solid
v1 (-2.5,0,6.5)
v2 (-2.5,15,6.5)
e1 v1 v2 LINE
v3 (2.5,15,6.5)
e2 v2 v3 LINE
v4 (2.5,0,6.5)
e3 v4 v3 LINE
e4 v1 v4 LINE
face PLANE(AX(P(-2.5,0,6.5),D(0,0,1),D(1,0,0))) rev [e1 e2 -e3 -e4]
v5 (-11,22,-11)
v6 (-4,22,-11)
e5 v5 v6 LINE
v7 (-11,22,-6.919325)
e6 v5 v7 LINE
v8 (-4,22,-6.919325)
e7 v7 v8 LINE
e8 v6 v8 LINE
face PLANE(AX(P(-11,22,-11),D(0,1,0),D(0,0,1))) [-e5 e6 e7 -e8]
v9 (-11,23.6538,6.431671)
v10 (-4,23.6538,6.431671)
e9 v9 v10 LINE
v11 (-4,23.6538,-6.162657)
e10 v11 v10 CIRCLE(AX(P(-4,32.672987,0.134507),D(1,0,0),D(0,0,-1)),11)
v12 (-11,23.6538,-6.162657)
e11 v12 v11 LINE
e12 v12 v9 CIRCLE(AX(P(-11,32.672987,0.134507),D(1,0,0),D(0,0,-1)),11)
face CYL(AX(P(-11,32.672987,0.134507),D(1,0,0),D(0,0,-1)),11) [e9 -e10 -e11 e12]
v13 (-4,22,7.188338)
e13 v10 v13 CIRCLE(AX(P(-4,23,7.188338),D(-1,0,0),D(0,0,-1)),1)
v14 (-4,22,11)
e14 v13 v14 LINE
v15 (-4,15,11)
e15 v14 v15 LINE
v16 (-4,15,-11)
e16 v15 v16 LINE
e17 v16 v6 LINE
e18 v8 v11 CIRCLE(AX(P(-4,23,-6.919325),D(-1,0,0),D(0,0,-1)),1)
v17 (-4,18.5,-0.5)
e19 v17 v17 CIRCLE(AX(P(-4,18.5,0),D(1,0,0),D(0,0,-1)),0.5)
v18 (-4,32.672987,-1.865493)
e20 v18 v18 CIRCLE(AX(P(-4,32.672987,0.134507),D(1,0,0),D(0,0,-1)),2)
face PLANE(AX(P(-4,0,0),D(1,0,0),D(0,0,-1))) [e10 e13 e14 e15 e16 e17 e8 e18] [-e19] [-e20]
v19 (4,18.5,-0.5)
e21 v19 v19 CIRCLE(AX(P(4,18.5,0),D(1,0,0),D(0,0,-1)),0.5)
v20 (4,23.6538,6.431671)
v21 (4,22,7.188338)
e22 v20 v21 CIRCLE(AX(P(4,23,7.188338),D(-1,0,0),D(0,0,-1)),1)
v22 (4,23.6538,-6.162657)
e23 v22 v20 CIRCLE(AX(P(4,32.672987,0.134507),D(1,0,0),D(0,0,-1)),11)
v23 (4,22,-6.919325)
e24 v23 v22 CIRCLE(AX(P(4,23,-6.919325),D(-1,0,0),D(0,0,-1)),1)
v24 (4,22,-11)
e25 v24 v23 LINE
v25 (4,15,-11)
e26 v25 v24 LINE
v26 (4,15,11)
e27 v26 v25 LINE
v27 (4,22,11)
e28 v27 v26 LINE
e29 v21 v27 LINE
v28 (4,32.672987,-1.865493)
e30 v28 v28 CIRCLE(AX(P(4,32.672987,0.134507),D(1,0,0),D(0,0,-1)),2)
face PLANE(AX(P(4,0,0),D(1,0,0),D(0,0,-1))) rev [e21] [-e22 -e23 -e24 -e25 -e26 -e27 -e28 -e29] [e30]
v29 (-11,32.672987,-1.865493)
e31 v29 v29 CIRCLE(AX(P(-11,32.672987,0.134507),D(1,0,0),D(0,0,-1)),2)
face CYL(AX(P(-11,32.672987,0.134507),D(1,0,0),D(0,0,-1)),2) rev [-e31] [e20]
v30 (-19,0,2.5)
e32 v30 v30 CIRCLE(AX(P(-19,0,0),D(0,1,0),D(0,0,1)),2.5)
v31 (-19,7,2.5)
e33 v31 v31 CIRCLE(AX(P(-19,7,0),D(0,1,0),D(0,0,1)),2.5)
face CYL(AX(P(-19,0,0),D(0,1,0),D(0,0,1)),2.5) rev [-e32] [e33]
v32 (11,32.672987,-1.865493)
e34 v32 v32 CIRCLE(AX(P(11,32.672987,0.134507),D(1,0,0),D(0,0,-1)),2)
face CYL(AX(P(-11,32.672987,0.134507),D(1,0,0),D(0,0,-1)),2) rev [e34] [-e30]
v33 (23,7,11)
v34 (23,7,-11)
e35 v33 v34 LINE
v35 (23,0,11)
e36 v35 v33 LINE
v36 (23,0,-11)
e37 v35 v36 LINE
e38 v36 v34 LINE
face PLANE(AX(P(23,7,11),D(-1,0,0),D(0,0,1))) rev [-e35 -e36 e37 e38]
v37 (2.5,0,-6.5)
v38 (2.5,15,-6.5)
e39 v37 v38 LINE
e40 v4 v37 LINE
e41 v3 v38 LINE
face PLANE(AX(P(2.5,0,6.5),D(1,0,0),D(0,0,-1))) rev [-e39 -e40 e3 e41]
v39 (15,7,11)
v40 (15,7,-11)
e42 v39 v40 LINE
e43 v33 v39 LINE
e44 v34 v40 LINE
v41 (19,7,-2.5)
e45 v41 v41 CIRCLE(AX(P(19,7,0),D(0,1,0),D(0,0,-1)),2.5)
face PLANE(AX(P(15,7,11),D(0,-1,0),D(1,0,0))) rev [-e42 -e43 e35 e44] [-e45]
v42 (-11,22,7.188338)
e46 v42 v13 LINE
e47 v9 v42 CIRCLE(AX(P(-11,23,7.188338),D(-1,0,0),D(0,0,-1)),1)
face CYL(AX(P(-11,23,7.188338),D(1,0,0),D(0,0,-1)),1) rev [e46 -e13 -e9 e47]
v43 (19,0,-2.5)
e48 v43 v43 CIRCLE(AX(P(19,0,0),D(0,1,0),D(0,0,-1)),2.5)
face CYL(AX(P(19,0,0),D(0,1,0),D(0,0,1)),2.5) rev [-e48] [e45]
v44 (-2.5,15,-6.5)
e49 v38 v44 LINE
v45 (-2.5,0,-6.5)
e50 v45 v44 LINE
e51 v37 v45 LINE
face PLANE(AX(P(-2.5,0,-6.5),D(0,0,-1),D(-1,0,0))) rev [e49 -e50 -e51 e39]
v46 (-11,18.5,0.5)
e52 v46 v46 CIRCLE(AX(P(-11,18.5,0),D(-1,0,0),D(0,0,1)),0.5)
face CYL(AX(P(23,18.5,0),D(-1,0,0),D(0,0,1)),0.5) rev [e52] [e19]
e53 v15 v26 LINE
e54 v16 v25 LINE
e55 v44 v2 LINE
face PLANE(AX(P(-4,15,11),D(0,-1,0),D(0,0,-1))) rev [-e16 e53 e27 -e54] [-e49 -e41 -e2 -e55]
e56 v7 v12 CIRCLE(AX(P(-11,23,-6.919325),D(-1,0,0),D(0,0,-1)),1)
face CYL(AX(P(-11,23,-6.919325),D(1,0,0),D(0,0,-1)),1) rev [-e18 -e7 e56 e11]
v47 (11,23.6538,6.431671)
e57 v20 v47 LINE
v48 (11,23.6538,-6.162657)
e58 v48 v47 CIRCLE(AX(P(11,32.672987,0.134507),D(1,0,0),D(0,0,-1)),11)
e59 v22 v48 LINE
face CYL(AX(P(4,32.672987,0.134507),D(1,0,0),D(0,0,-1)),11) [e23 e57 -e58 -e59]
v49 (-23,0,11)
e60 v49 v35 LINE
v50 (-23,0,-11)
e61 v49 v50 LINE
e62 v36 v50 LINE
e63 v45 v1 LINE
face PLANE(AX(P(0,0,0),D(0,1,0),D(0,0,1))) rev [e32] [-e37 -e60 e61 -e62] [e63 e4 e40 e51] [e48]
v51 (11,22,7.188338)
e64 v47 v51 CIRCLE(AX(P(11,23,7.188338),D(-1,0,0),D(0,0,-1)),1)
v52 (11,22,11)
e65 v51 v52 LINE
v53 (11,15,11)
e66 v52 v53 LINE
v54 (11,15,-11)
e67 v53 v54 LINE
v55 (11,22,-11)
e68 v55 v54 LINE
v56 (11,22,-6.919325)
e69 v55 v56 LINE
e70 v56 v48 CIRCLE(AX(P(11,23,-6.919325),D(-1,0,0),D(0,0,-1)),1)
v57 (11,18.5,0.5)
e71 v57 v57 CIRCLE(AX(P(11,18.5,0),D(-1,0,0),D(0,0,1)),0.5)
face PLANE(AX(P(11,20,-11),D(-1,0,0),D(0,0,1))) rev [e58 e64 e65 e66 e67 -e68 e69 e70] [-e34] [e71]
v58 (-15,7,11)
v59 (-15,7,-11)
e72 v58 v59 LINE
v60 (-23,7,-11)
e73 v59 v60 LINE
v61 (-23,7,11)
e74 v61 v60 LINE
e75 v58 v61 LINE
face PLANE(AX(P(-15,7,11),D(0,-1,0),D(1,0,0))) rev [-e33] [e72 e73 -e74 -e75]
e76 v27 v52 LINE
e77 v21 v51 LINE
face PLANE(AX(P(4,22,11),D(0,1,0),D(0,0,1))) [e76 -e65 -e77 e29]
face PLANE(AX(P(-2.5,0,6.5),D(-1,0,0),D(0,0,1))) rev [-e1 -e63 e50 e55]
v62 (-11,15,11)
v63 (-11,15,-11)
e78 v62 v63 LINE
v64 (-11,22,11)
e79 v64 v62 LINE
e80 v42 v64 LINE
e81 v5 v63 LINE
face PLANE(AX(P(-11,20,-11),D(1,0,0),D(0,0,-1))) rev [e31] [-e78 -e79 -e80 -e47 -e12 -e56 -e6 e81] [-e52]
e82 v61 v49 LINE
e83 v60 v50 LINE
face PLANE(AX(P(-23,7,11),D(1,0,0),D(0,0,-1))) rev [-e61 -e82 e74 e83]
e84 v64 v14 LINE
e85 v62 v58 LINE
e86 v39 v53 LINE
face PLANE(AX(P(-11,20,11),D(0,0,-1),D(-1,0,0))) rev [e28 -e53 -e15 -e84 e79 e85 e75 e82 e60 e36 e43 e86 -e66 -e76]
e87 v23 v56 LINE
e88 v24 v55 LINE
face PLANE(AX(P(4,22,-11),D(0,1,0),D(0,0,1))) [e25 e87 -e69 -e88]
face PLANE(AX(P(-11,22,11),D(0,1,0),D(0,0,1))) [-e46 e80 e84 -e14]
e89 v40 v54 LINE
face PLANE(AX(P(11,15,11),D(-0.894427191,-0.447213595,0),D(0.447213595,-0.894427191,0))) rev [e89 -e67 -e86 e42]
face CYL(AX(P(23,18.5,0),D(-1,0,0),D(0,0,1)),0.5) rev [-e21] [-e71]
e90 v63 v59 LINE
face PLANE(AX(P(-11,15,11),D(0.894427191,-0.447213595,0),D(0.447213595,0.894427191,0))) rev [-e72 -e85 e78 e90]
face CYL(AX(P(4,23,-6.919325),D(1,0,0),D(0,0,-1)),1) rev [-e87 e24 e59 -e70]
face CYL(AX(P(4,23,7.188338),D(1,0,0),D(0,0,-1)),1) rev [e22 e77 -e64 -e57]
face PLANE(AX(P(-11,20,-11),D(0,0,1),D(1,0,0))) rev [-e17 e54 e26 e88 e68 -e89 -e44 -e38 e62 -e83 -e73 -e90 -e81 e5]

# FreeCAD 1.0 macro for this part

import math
import FreeCAD as App
import Part
import Sketcher

doc = App.newDocument("Part")
body = doc.addObject("PartDesign::Body", "Body")

sketch1 = doc.addObject("Sketcher::SketchObject", "Sketch")
body.addObject(sketch1)
sketch1.AttachmentSupport = (doc.XZ_Plane, [""])
sketch1.MapMode = "FlatFace"
sketch1.addGeometry([
    Part.LineSegment(App.Vector(-11, -11, 0), App.Vector(-11, 11, 0)),
    Part.LineSegment(App.Vector(-11, 11, 0), App.Vector(11, 11, 0)),
    Part.LineSegment(App.Vector(11, 11, 0), App.Vector(11, -11, 0)),
    Part.LineSegment(App.Vector(11, -11, 0), App.Vector(-11, -11, 0)),
], False)
sketch1.addConstraint([
    Sketcher.Constraint("Coincident", 0, 2, 1, 1),
    Sketcher.Constraint("Coincident", 1, 2, 2, 1),
    Sketcher.Constraint("Coincident", 2, 2, 3, 1),
    Sketcher.Constraint("Coincident", 3, 2, 0, 1),
    Sketcher.Constraint("Vertical", 0),
    Sketcher.Constraint("Horizontal", 1),
    Sketcher.Constraint("Vertical", 2),
    Sketcher.Constraint("Horizontal", 3),
    Sketcher.Constraint("Symmetric", 0, 2, 2, 2, -1, 1),
    Sketcher.Constraint("Equal", 3, 0),
    Sketcher.Constraint("DistanceX", 1, 1, 1, 2, 22.0),
])
pad1 = doc.addObject("PartDesign::Pad", "Pad")
body.addObject(pad1)
pad1.Profile = sketch1
pad1.Length = 20
pad1.Reversed = True

sketch2 = doc.addObject("Sketcher::SketchObject", "Sketch001")
body.addObject(sketch2)
sketch2.AttachmentSupport = (doc.YZ_Plane, [""])
sketch2.MapMode = "FlatFace"
sketch2.addGeometry([
    Part.LineSegment(App.Vector(20, 11, 0), App.Vector(15, 11, 0)),
    Part.LineSegment(App.Vector(15, 11, 0), App.Vector(15, -11, 0)),
    Part.LineSegment(App.Vector(15, -11, 0), App.Vector(20, -11, 0)),
    Part.LineSegment(App.Vector(20, -11, 0), App.Vector(20, 11, 0)),
], False)
sketch2.addConstraint([
    Sketcher.Constraint("Coincident", 0, 2, 1, 1),
    Sketcher.Constraint("Coincident", 1, 2, 2, 1),
    Sketcher.Constraint("Coincident", 2, 2, 3, 1),
    Sketcher.Constraint("Coincident", 3, 2, 0, 1),
    Sketcher.Constraint("Horizontal", 0),
    Sketcher.Constraint("Vertical", 1),
    Sketcher.Constraint("Horizontal", 2),
    Sketcher.Constraint("Vertical", 3),
    Sketcher.Constraint("DistanceX", 0, 2, 0, 1, 5.0),
    Sketcher.Constraint("DistanceY", 1, 2, 1, 1, 22.0),
    Sketcher.Constraint("DistanceX", -1, 1, 0, 2, 15.0),
    Sketcher.Constraint("DistanceY", -1, 1, 0, 2, 11.0),
])
pocket1 = doc.addObject("PartDesign::Pocket", "Pocket")
body.addObject(pocket1)
pocket1.Profile = sketch2
pocket1.Length = 8
pocket1.Midplane = True

sketch3 = doc.addObject("Sketcher::SketchObject", "Sketch002")
body.addObject(sketch3)
sketch3.AttachmentSupport = (doc.YZ_Plane, [""])
sketch3.MapMode = "FlatFace"
sketch3.AttachmentOffset = App.Placement(App.Vector(0, 0, 11), App.Rotation())
sketch3.addGeometry([
    Part.LineSegment(App.Vector(22, 11, 0), App.Vector(20, 11, 0)),
    Part.LineSegment(App.Vector(20, 11, 0), App.Vector(20, -11, 0)),
    Part.LineSegment(App.Vector(20, -11, 0), App.Vector(22, -11, 0)),
    Part.LineSegment(App.Vector(22, -11, 0), App.Vector(22, -6.919325, 0)),
    Part.ArcOfCircle(Part.Circle(App.Vector(23, -6.919325, 0), App.Vector(0, 0, 1), 1), math.radians(49.171258), math.radians(180)),
    Part.ArcOfCircle(Part.Circle(App.Vector(32.672987, 0.134507, 0), App.Vector(0, 0, 1), 11), math.radians(-145.07739), math.radians(145.07739)),
    Part.ArcOfCircle(Part.Circle(App.Vector(23, 7.188338, 0), App.Vector(0, 0, 1), 1), math.radians(180), math.radians(310.828742)),
    Part.LineSegment(App.Vector(22, 7.188338, 0), App.Vector(22, 11, 0)),
], False)
sketch3.addConstraint([
    Sketcher.Constraint("Coincident", 0, 2, 1, 1),
    Sketcher.Constraint("Coincident", 1, 2, 2, 1),
    Sketcher.Constraint("Coincident", 2, 2, 3, 1),
    Sketcher.Constraint("Tangent", 3, 2, 4, 2),
    Sketcher.Constraint("Coincident", 4, 1, 5, 1),
    Sketcher.Constraint("Coincident", 5, 2, 6, 2),
    Sketcher.Constraint("Tangent", 6, 1, 7, 1),
    Sketcher.Constraint("Coincident", 7, 2, 0, 1),
    Sketcher.Constraint("Horizontal", 0),
    Sketcher.Constraint("Vertical", 1),
    Sketcher.Constraint("Horizontal", 2),
    Sketcher.Constraint("Vertical", 3),
    Sketcher.Constraint("Vertical", 7),
    Sketcher.Constraint("Equal", 4, 6),
    Sketcher.Constraint("Symmetric", 2, 2, 7, 2, -1),
    Sketcher.Constraint("Vertical", 4, 1, 5, 2),
    Sketcher.Constraint("Radius", 4, 1.0),
    Sketcher.Constraint("Radius", 5, 11.0),
    Sketcher.Constraint("DistanceX", 0, 2, 0, 1, 2.0),
    Sketcher.Constraint("DistanceY", 1, 2, 1, 1, 22.0),
    Sketcher.Constraint("DistanceX", -1, 1, 4, 3, 23.0),
    Sketcher.Constraint("DistanceY", 7, 1, 7, 2, 3.811662),
    Sketcher.Constraint("DistanceX", -1, 1, 4, 1, 23.6538),
    Sketcher.Constraint("DistanceY", 3, 1, 3, 2, 4.080675),
])
pad2 = doc.addObject("PartDesign::Pad", "Pad001")
body.addObject(pad2)
pad2.Profile = sketch3
pad2.Length = 7
pad2.Reversed = True
doc.recompute()

linearpattern = doc.addObject("PartDesign::LinearPattern", "LinearPattern")
body.addObject(linearpattern)
linearpattern.Originals = [pad2]
linearpattern.Direction = (doc.X_Axis, [""])
linearpattern.Mode = "offset"
linearpattern.Offset = 15
linearpattern.Occurrences = 2
linearpattern.Reversed = True
body.Tip = linearpattern

sketch4 = doc.addObject("Sketcher::SketchObject", "Sketch003")
body.addObject(sketch4)
sketch4.AttachmentSupport = (doc.YZ_Plane, [""])
sketch4.MapMode = "FlatFace"
sketch4.AttachmentOffset = App.Placement(App.Vector(0, 0, 11), App.Rotation())
sketch4.addGeometry(Part.Circle(App.Vector(32.672987, 0.134507, 0), App.Vector(0, 0, 1), 2), False)
sketch4.addConstraint([
    Sketcher.Constraint("Diameter", 0, 4.0),
    Sketcher.Constraint("DistanceX", -1, 1, 0, 3, 32.672987),
    Sketcher.Constraint("DistanceY", -1, 1, 0, 3, 0.134507),
])
pocket2 = doc.addObject("PartDesign::Pocket", "Pocket001")
body.addObject(pocket2)
pocket2.Profile = sketch4
pocket2.Type = "ThroughAll"

sketch5 = doc.addObject("Sketcher::SketchObject", "Sketch004")
body.addObject(sketch5)
sketch5.AttachmentSupport = (doc.XY_Plane, [""])
sketch5.MapMode = "FlatFace"
sketch5.addGeometry([
    Part.LineSegment(App.Vector(-11, 15, 0), App.Vector(-15, 7, 0)),
    Part.LineSegment(App.Vector(-15, 7, 0), App.Vector(-23, 7, 0)),
    Part.LineSegment(App.Vector(-23, 7, 0), App.Vector(-23, 0, 0)),
    Part.LineSegment(App.Vector(-23, 0, 0), App.Vector(-11, 0, 0)),
    Part.LineSegment(App.Vector(-11, 0, 0), App.Vector(-11, 15, 0)),
    Part.LineSegment(App.Vector(15, 7, 0), App.Vector(11, 15, 0)),
    Part.LineSegment(App.Vector(11, 15, 0), App.Vector(11, 0, 0)),
    Part.LineSegment(App.Vector(11, 0, 0), App.Vector(23, 0, 0)),
    Part.LineSegment(App.Vector(23, 0, 0), App.Vector(23, 7, 0)),
    Part.LineSegment(App.Vector(23, 7, 0), App.Vector(15, 7, 0)),
], False)
sketch5.addConstraint([
    Sketcher.Constraint("Coincident", 0, 2, 1, 1),
    Sketcher.Constraint("Coincident", 1, 2, 2, 1),
    Sketcher.Constraint("Coincident", 2, 2, 3, 1),
    Sketcher.Constraint("Coincident", 3, 2, 4, 1),
    Sketcher.Constraint("Coincident", 4, 2, 0, 1),
    Sketcher.Constraint("Coincident", 5, 2, 6, 1),
    Sketcher.Constraint("Coincident", 6, 2, 7, 1),
    Sketcher.Constraint("Coincident", 7, 2, 8, 1),
    Sketcher.Constraint("Coincident", 8, 2, 9, 1),
    Sketcher.Constraint("Coincident", 9, 2, 5, 1),
    Sketcher.Constraint("Horizontal", 1),
    Sketcher.Constraint("Vertical", 2),
    Sketcher.Constraint("Horizontal", 3),
    Sketcher.Constraint("Vertical", 4),
    Sketcher.Constraint("Vertical", 6),
    Sketcher.Constraint("Horizontal", 7),
    Sketcher.Constraint("Vertical", 8),
    Sketcher.Constraint("Horizontal", 9),
    Sketcher.Constraint("Symmetric", 3, 2, 6, 2, -1, 1),
    Sketcher.Constraint("Symmetric", 2, 2, 7, 2, -2),
    Sketcher.Constraint("Symmetric", 0, 2, 9, 2, -2),
    Sketcher.Constraint("Horizontal", 4, 2, 5, 2),
    Sketcher.Constraint("DistanceX", 1, 2, 1, 1, 8.0),
    Sketcher.Constraint("DistanceX", 3, 1, 3, 2, 12.0),
    Sketcher.Constraint("DistanceY", 2, 2, 2, 1, 7.0),
    Sketcher.Constraint("DistanceY", 4, 1, 4, 2, 15.0),
    Sketcher.Constraint("DistanceX", 0, 2, -1, 1, 15.0),
])
pad3 = doc.addObject("PartDesign::Pad", "Pad002")
body.addObject(pad3)
pad3.Profile = sketch5
pad3.Length = 22
pad3.Midplane = True

sketch6 = doc.addObject("Sketcher::SketchObject", "Sketch005")
body.addObject(sketch6)
sketch6.AttachmentSupport = (doc.XZ_Plane, [""])
sketch6.MapMode = "FlatFace"
sketch6.AttachmentOffset = App.Placement(App.Vector(0, 0, -7), App.Rotation())
sketch6.addGeometry([
    Part.Circle(App.Vector(-19, 0, 0), App.Vector(0, 0, 1), 2.5),
    Part.Circle(App.Vector(19, 0, 0), App.Vector(0, 0, 1), 2.5),
], False)
sketch6.addConstraint([
    Sketcher.Constraint("Equal", 0, 1),
    Sketcher.Constraint("Symmetric", 0, 3, 1, 3, -1, 1),
    Sketcher.Constraint("PointOnObject", 0, 3, -1),
    Sketcher.Constraint("Diameter", 0, 5.0),
    Sketcher.Constraint("DistanceX", 0, 3, -1, 1, 19.0),
])
pocket3 = doc.addObject("PartDesign::Pocket", "Pocket002")
body.addObject(pocket3)
pocket3.Profile = sketch6
pocket3.Type = "ThroughAll"
pocket3.Reversed = True

sketch7 = doc.addObject("Sketcher::SketchObject", "Sketch006")
body.addObject(sketch7)
sketch7.AttachmentSupport = (doc.XZ_Plane, [""])
sketch7.MapMode = "FlatFace"
sketch7.AttachmentOffset = App.Placement(App.Vector(0, 0, -15), App.Rotation())
sketch7.addGeometry([
    Part.LineSegment(App.Vector(-2.5, -6.5, 0), App.Vector(-2.5, 6.5, 0)),
    Part.LineSegment(App.Vector(-2.5, 6.5, 0), App.Vector(2.5, 6.5, 0)),
    Part.LineSegment(App.Vector(2.5, 6.5, 0), App.Vector(2.5, -6.5, 0)),
    Part.LineSegment(App.Vector(2.5, -6.5, 0), App.Vector(-2.5, -6.5, 0)),
], False)
sketch7.addConstraint([
    Sketcher.Constraint("Coincident", 0, 2, 1, 1),
    Sketcher.Constraint("Coincident", 1, 2, 2, 1),
    Sketcher.Constraint("Coincident", 2, 2, 3, 1),
    Sketcher.Constraint("Coincident", 3, 2, 0, 1),
    Sketcher.Constraint("Vertical", 0),
    Sketcher.Constraint("Horizontal", 1),
    Sketcher.Constraint("Vertical", 2),
    Sketcher.Constraint("Horizontal", 3),
    Sketcher.Constraint("Symmetric", 0, 2, 2, 2, -1, 1),
    Sketcher.Constraint("DistanceX", 1, 1, 1, 2, 5.0),
    Sketcher.Constraint("DistanceY", 0, 1, 0, 2, 13.0),
])
pocket4 = doc.addObject("PartDesign::Pocket", "Pocket003")
body.addObject(pocket4)
pocket4.Profile = sketch7
pocket4.Type = "ThroughAll"
pocket4.Reversed = True

sketch8 = doc.addObject("Sketcher::SketchObject", "Sketch007")
body.addObject(sketch8)
sketch8.AttachmentSupport = (doc.YZ_Plane, [""])
sketch8.MapMode = "FlatFace"
sketch8.AttachmentOffset = App.Placement(App.Vector(0, 0, -11), App.Rotation())
sketch8.addGeometry(Part.Circle(App.Vector(18.5, 0, 0), App.Vector(0, 0, 1), 0.5), False)
sketch8.addConstraint([
    Sketcher.Constraint("PointOnObject", 0, 3, -1),
    Sketcher.Constraint("Diameter", 0, 1.0),
    Sketcher.Constraint("DistanceX", -1, 1, 0, 3, 18.5),
])
pocket5 = doc.addObject("PartDesign::Pocket", "Pocket004")
body.addObject(pocket5)
pocket5.Profile = sketch8
pocket5.Type = "ThroughAll"
pocket5.Reversed = True

doc.recompute()
